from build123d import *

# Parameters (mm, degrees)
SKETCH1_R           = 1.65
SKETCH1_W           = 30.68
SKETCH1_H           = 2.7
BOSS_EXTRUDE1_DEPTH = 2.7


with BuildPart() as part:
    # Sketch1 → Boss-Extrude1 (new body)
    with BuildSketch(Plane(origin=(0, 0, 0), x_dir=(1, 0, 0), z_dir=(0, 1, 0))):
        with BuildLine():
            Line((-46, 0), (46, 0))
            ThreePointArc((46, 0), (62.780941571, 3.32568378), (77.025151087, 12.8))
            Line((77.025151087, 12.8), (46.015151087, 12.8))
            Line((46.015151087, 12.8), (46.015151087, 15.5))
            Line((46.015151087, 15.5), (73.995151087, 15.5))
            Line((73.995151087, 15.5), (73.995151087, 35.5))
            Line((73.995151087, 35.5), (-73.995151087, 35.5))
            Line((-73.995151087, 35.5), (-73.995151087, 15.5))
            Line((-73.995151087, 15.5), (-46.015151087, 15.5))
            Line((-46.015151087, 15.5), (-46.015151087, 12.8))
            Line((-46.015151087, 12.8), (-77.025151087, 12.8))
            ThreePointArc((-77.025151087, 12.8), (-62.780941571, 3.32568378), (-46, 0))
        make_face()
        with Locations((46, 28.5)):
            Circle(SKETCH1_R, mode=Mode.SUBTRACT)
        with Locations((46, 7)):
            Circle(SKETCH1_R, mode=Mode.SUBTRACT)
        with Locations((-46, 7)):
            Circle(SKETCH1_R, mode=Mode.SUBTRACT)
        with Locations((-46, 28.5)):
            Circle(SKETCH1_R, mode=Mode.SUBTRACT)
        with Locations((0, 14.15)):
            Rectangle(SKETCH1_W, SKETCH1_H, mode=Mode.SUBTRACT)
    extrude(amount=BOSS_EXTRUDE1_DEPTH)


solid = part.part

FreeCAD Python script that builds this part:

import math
import FreeCAD as App
import Part
import Sketcher
from FreeCAD import Vector

doc = App.newDocument("Part")
body = doc.addObject("PartDesign::Body", "Body")

sketch1 = doc.addObject("Sketcher::SketchObject", "Sketch")
body.addObject(sketch1)
sketch1.AttachmentSupport = (doc.XZ_Plane, [""])
sketch1.MapMode = "FlatFace"
sketch1.addGeometry([
    Part.LineSegment(Vector(-46, 0, 0), Vector(46, 0, 0)),
    Part.ArcOfCircle(Part.Circle(Vector(46, -44, 0), Vector(0, 0, 1), 44), math.radians(45), math.radians(90)),
    Part.LineSegment(Vector(77, -12.8, 0), Vector(46, -12.8, 0)),
    Part.LineSegment(Vector(46, -12.8, 0), Vector(46, -15.5, 0)),
    Part.LineSegment(Vector(46, -15.5, 0), Vector(74, -15.5, 0)),
    Part.LineSegment(Vector(74, -15.5, 0), Vector(74, -35.5, 0)),
    Part.LineSegment(Vector(74, -35.5, 0), Vector(-74, -35.5, 0)),
    Part.LineSegment(Vector(-74, -35.5, 0), Vector(-74, -15.5, 0)),
    Part.LineSegment(Vector(-74, -15.5, 0), Vector(-46, -15.5, 0)),
    Part.LineSegment(Vector(-46, -15.5, 0), Vector(-46, -12.8, 0)),
    Part.LineSegment(Vector(-46, -12.8, 0), Vector(-77, -12.8, 0)),
    Part.ArcOfCircle(Part.Circle(Vector(-46, -44, 0), Vector(0, 0, 1), 44), math.radians(90), math.radians(135)),
    Part.Circle(Vector(-46, -7, 0), Vector(0, 0, 1), 1.6),
    Part.Circle(Vector(46, -7, 0), Vector(0, 0, 1), 1.6),
    Part.LineSegment(Vector(15.3, -12.8, 0), Vector(-15.3, -12.8, 0)),
    Part.LineSegment(Vector(-15.3, -12.8, 0), Vector(-15.3, -15.5, 0)),
    Part.LineSegment(Vector(-15.3, -15.5, 0), Vector(15.3, -15.5, 0)),
    Part.LineSegment(Vector(15.3, -15.5, 0), Vector(15.3, -12.8, 0)),
    Part.Circle(Vector(-46, -28.5, 0), Vector(0, 0, 1), 1.6),
    Part.Circle(Vector(46, -28.5, 0), Vector(0, 0, 1), 1.6),
], False)
sketch1.addConstraint([
    Sketcher.Constraint("Tangent", 0, 2, 1, 2),
    Sketcher.Constraint("Coincident", 1, 1, 2, 1),
    Sketcher.Constraint("Coincident", 2, 2, 3, 1),
    Sketcher.Constraint("Coincident", 3, 2, 4, 1),
    Sketcher.Constraint("Coincident", 4, 2, 5, 1),
    Sketcher.Constraint("Coincident", 5, 2, 6, 1),
    Sketcher.Constraint("Coincident", 6, 2, 7, 1),
    Sketcher.Constraint("Coincident", 7, 2, 8, 1),
    Sketcher.Constraint("Coincident", 8, 2, 9, 1),
    Sketcher.Constraint("Coincident", 9, 2, 10, 1),
    Sketcher.Constraint("Coincident", 10, 2, 11, 2),
    Sketcher.Constraint("Tangent", 11, 1, 0, 1),
    Sketcher.Constraint("Coincident", 14, 2, 15, 1),
    Sketcher.Constraint("Coincident", 15, 2, 16, 1),
    Sketcher.Constraint("Coincident", 16, 2, 17, 1),
    Sketcher.Constraint("Coincident", 17, 2, 14, 1),
    Sketcher.Constraint("Horizontal", 0),
    Sketcher.Constraint("Horizontal", 2),
    Sketcher.Constraint("Vertical", 3),
    Sketcher.Constraint("Horizontal", 4),
    Sketcher.Constraint("Vertical", 5),
    Sketcher.Constraint("Horizontal", 6),
    Sketcher.Constraint("Vertical", 7),
    Sketcher.Constraint("Horizontal", 8),
    Sketcher.Constraint("Vertical", 9),
    Sketcher.Constraint("Horizontal", 10),
    Sketcher.Constraint("Horizontal", 14),
    Sketcher.Constraint("Vertical", 15),
    Sketcher.Constraint("Horizontal", 16),
    Sketcher.Constraint("Vertical", 17),
    Sketcher.Constraint("Equal", 1, 11),
    Sketcher.Constraint("Equal", 12, 13),
    Sketcher.Constraint("Equal", 13, 18),
    Sketcher.Constraint("Equal", 18, 19),
    Sketcher.Constraint("Symmetric", 0, 2, 11, 1, -1, 1),
    Sketcher.Constraint("Symmetric", 12, 3, 13, 3, -2),
    Sketcher.Constraint("Symmetric", 18, 3, 19, 3, -2),
    Sketcher.Constraint("Symmetric", 4, 2, 7, 2, -2),
    Sketcher.Constraint("Symmetric", 2, 2, 9, 2, -2),
    Sketcher.Constraint("Horizontal", 10, 2, 14, 2),
    Sketcher.Constraint("Horizontal", 8, 2, 15, 2),
    Sketcher.Constraint("Vertical", 11, 3, 12, 3),
    Sketcher.Constraint("Vertical", 12, 3, 18, 3),
    Sketcher.Constraint("Radius", 1, 44.0),
    Sketcher.Constraint("Diameter", 12, 3.3),
    Sketcher.Constraint("DistanceX", 0, 1, 0, 2, 92.0),
    Sketcher.Constraint("DistanceY", 5, 2, 5, 1, 20.0),
    Sketcher.Constraint("DistanceY", 3, 2, 3, 1, 2.7),
    Sketcher.Constraint("DistanceY", 12, 3, -1, 1, 7.0),
    Sketcher.Constraint("DistanceY", 19, 3, 3, 2, 13.0),
    Sketcher.Constraint("DistanceX", 2, 2, 2, 1, 31.01),
    Sketcher.Constraint("DistanceX", 4, 1, 4, 2, 27.98),
    Sketcher.Constraint("DistanceX", 14, 2, 14, 1, 30.68),
    Sketcher.Constraint("DistanceY", 18, 3, -1, 1, 28.5),
    Sketcher.Constraint("DistanceX", 14, 2, -1, 1, 15.34),
])
pad1 = doc.addObject("PartDesign::Pad", "Pad")
body.addObject(pad1)
pad1.Profile = sketch1
pad1.Length = 2.7
pad1.Reversed = True

doc.recompute()
